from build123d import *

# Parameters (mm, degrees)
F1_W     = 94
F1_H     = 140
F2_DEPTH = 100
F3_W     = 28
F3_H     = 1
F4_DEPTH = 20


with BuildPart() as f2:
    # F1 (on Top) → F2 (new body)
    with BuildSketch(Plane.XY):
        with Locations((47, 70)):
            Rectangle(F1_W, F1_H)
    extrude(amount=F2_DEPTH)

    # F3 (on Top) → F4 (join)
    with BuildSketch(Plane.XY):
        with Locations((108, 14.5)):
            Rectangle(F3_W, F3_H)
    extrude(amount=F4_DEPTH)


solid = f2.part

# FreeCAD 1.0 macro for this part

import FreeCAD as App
import Part
import Sketcher
from FreeCAD import Vector
Q = App.Units.Quantity

doc = App.newDocument("Part")
body = doc.addObject("PartDesign::Body", "Body")

# Sketch on XY plane
sketch1 = body.newObject("Sketcher::SketchObject", "Sketch")
sketch1.AttachmentSupport = (doc.getObject("XY_Plane"), [""])
sketch1.MapMode = "FlatFace"
sketch1.addGeometry([
    Part.LineSegment(Vector(0, 140, 0), Vector(0, 0, 0)),
    Part.LineSegment(Vector(0, 0, 0), Vector(94, 0, 0)),
    Part.LineSegment(Vector(94, 0, 0), Vector(94, 140, 0)),
    Part.LineSegment(Vector(94, 140, 0), Vector(0, 140, 0)),
], False)
sketch1.addConstraint([
    Sketcher.Constraint("Coincident", 0, 2, 1, 1),
    Sketcher.Constraint("Coincident", 1, 2, 2, 1),
    Sketcher.Constraint("Coincident", 2, 2, 3, 1),
    Sketcher.Constraint("Coincident", 3, 2, 0, 1),
    Sketcher.Constraint("Vertical", 0),
    Sketcher.Constraint("Horizontal", 1),
    Sketcher.Constraint("Vertical", 2),
    Sketcher.Constraint("Horizontal", 3),
    Sketcher.Constraint("Coincident", 0, 2, -1, 1),
    Sketcher.Constraint("DistanceX", 1, 1, 1, 2, Q("94 mm")),
    Sketcher.Constraint("DistanceY", 0, 2, 0, 1, Q("140 mm")),
])
pad1 = body.newObject("PartDesign::Pad", "Pad")
pad1.Profile = sketch1
pad1.Length = 100

# Sketch on XY plane
sketch2 = body.newObject("Sketcher::SketchObject", "Sketch001")
sketch2.AttachmentSupport = (doc.getObject("XY_Plane"), [""])
sketch2.MapMode = "FlatFace"
sketch2.addGeometry([
    Part.LineSegment(Vector(94, 15, 0), Vector(94, 14, 0)),
    Part.LineSegment(Vector(94, 14, 0), Vector(122, 14, 0)),
    Part.LineSegment(Vector(122, 14, 0), Vector(122, 15, 0)),
    Part.LineSegment(Vector(122, 15, 0), Vector(94, 15, 0)),
], False)
sketch2.addConstraint([
    Sketcher.Constraint("Coincident", 0, 2, 1, 1),
    Sketcher.Constraint("Coincident", 1, 2, 2, 1),
    Sketcher.Constraint("Coincident", 2, 2, 3, 1),
    Sketcher.Constraint("Coincident", 3, 2, 0, 1),
    Sketcher.Constraint("Vertical", 0),
    Sketcher.Constraint("Horizontal", 1),
    Sketcher.Constraint("Vertical", 2),
    Sketcher.Constraint("Horizontal", 3),
    Sketcher.Constraint("DistanceX", 1, 1, 1, 2, Q("28 mm")),
    Sketcher.Constraint("DistanceY", 0, 2, 0, 1, Q("1 mm")),
    Sketcher.Constraint("DistanceX", -1, 1, 0, 2, Q("94 mm")),
    Sketcher.Constraint("DistanceY", -1, 1, 0, 2, Q("14 mm")),
])
pad2 = body.newObject("PartDesign::Pad", "Pad001")
pad2.Profile = sketch2
pad2.Length = 20

doc.recompute()
